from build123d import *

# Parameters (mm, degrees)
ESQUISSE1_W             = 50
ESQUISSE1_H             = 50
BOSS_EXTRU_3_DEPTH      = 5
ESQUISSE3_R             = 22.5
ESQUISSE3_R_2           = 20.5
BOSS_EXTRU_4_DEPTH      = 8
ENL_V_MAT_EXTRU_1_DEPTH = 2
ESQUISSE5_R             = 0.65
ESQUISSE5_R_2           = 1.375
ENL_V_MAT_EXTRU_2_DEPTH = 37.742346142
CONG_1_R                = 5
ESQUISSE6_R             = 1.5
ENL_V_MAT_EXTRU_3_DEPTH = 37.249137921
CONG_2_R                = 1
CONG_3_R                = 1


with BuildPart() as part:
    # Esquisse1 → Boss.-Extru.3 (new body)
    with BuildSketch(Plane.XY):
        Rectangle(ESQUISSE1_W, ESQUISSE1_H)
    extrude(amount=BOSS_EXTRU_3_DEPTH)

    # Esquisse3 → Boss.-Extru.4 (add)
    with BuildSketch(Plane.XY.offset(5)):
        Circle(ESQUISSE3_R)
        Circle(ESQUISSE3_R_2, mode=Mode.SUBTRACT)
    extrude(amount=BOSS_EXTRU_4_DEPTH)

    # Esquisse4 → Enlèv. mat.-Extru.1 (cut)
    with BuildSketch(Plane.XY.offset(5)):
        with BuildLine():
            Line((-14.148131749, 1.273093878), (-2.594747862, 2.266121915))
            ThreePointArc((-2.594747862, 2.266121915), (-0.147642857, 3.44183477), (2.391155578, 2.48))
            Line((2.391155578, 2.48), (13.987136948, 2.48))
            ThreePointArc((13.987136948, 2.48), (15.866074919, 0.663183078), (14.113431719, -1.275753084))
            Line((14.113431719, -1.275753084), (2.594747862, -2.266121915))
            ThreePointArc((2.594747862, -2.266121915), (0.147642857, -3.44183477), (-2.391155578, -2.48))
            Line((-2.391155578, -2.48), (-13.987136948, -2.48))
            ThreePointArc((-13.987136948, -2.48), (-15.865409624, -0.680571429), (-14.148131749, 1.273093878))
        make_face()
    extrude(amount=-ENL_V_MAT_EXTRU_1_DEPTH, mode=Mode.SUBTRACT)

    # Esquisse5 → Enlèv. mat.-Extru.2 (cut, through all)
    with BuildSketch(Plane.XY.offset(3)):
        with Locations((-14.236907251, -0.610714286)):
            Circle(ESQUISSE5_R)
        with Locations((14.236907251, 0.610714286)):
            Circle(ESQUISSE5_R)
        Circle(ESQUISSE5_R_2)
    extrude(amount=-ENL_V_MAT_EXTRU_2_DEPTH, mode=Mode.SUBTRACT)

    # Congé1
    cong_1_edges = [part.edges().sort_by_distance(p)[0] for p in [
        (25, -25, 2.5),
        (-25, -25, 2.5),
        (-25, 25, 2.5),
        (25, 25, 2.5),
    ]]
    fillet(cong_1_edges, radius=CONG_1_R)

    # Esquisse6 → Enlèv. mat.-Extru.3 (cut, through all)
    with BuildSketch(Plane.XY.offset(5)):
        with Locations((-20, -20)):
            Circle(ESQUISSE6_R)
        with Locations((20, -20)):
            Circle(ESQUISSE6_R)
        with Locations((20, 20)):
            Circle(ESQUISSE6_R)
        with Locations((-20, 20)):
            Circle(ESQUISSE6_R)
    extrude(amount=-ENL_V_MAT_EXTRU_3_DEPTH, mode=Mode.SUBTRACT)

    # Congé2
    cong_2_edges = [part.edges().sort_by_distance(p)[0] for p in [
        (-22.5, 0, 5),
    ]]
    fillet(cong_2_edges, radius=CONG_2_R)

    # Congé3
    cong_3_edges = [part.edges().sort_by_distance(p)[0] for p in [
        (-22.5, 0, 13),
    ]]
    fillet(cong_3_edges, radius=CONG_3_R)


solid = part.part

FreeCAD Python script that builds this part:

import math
import FreeCAD as App
import Part
import Sketcher
from FreeCAD import Vector
Q = App.Units.Quantity


def edges_at(feature, points):
    """Names of the edges that pass closest to the given points."""
    edges = feature.Shape.Edges
    near = lambda p: min(range(len(edges)), key=lambda i: edges[i].distToShape(Part.Vertex(*p))[0])
    return sorted({f"Edge{near(p) + 1}" for p in points})

doc = App.newDocument("Part")
body = doc.addObject("PartDesign::Body", "Body")

# Sketch on XY plane
sketch1 = body.newObject("Sketcher::SketchObject", "Sketch")
sketch1.AttachmentSupport = (doc.getObject("XY_Plane"), [""])
sketch1.MapMode = "FlatFace"
sketch1.addGeometry([
    Part.LineSegment(Vector(-25, 25, 0), Vector(-25, -25, 0)),
    Part.LineSegment(Vector(-25, -25, 0), Vector(25, -25, 0)),
    Part.LineSegment(Vector(25, -25, 0), Vector(25, 25, 0)),
    Part.LineSegment(Vector(25, 25, 0), Vector(-25, 25, 0)),
], False)
sketch1.addConstraint([
    Sketcher.Constraint("Coincident", 0, 2, 1, 1),
    Sketcher.Constraint("Coincident", 1, 2, 2, 1),
    Sketcher.Constraint("Coincident", 2, 2, 3, 1),
    Sketcher.Constraint("Coincident", 3, 2, 0, 1),
    Sketcher.Constraint("Vertical", 0),
    Sketcher.Constraint("Horizontal", 1),
    Sketcher.Constraint("Vertical", 2),
    Sketcher.Constraint("Horizontal", 3),
    Sketcher.Constraint("Symmetric", 0, 2, 2, 2, -1, 1),
    Sketcher.Constraint("Equal", 3, 0),
    Sketcher.Constraint("DistanceX", 1, 1, 1, 2, Q("50 mm")),
])
pad1 = body.newObject("PartDesign::Pad", "Pad")
pad1.Profile = sketch1
pad1.Length = 5

# Sketch on XY plane
sketch2 = body.newObject("Sketcher::SketchObject", "Sketch001")
sketch2.AttachmentSupport = (doc.getObject("XY_Plane"), [""])
sketch2.MapMode = "FlatFace"
sketch2.AttachmentOffset = App.Placement(Vector(0, 0, 5), App.Rotation())
sketch2.addGeometry([
    Part.Circle(Vector(0, 0, 0), Vector(0, 0, 1), 22),
    Part.Circle(Vector(0, 0, 0), Vector(0, 0, 1), 20),
], False)
sketch2.addConstraint([
    Sketcher.Constraint("Coincident", 0, 3, -1, 1),
    Sketcher.Constraint("Coincident", 1, 3, -1, 1),
    Sketcher.Constraint("Diameter", 0, Q("45 mm")),
    Sketcher.Constraint("Diameter", 1, Q("41 mm")),
])
pad2 = body.newObject("PartDesign::Pad", "Pad001")
pad2.Profile = sketch2
pad2.Length = 8

# Sketch on XY plane
sketch3 = body.newObject("Sketcher::SketchObject", "Sketch002")
sketch3.AttachmentSupport = (doc.getObject("XY_Plane"), [""])
sketch3.MapMode = "FlatFace"
sketch3.AttachmentOffset = App.Placement(Vector(0, 0, 5), App.Rotation())
sketch3.addGeometry([
    Part.LineSegment(Vector(-2.6, 2.3, 0), Vector(-14.1, 1.3, 0)),  # 0
    Part.ArcOfCircle(Part.Circle(Vector(-14, -0.6, 0), Vector(0, 0, 1), 1.9), math.radians(95), math.radians(270)),  # 1
    Part.LineSegment(Vector(-14, -2.5, 0), Vector(-2.4, -2.5, 0)),  # 2
    Part.ArcOfCircle(Part.Circle(Vector(0, 0, 0), Vector(0, 0, 1), 3.4), math.radians(-134), math.radians(-41)),  # 3
    Part.LineSegment(Vector(2.6, -2.3, 0), Vector(14.1, -1.3, 0)),  # 4
    Part.ArcOfCircle(Part.Circle(Vector(14, 0.6, 0), Vector(0, 0, 1), 1.9), math.radians(-86), math.radians(90)),  # 5
    Part.LineSegment(Vector(14, 2.5, 0), Vector(2.4, 2.5, 0)),  # 6
    Part.ArcOfCircle(Part.Circle(Vector(0, 0, 0), Vector(0, 0, 1), 3.4), math.radians(46), math.radians(139)),  # 7
], False)
sketch3.addConstraint([
    Sketcher.Constraint("Tangent", 0, 2, 1, 1),
    Sketcher.Constraint("Tangent", 1, 2, 2, 1),
    Sketcher.Constraint("Coincident", 2, 2, 3, 1),
    Sketcher.Constraint("Coincident", 3, 2, 4, 1),
    Sketcher.Constraint("Coincident", 4, 2, 5, 1),
    Sketcher.Constraint("Tangent", 5, 2, 6, 1),
    Sketcher.Constraint("Coincident", 6, 2, 7, 1),
    Sketcher.Constraint("Coincident", 7, 2, 0, 1),
    Sketcher.Constraint("Horizontal", 2),
    Sketcher.Constraint("Horizontal", 6),
    Sketcher.Constraint("Coincident", 3, 3, -1, 1),
    Sketcher.Constraint("Coincident", 7, 3, -1, 1),
    Sketcher.Constraint("Equal", 1, 5),
    Sketcher.Constraint("Equal", 3, 7),
    Sketcher.Constraint("Symmetric", 1, 3, 5, 3, -1, 1),
    Sketcher.Constraint("Radius", 1, Q("1.88 mm")),
    Sketcher.Constraint("Radius", 3, Q("3.445 mm")),
    Sketcher.Constraint("DistanceY", 1, 3, -1, 1, Q("0.6 mm")),
    Sketcher.Constraint("DistanceX", 2, 1, 2, 2, Q("11.595981 mm")),
    Sketcher.Constraint("Distance", 0, Q("11.595981 mm")),
    Sketcher.Constraint("Distance", 4, Q("11.561181 mm")),
    Sketcher.Constraint("DistanceY", 3, 2, -1, 1, Q("2.266122 mm")),
])
pocket1 = body.newObject("PartDesign::Pocket", "Pocket")
pocket1.Profile = sketch3
pocket1.Length = 2

# Sketch on XY plane
sketch4 = body.newObject("Sketcher::SketchObject", "Sketch003")
sketch4.AttachmentSupport = (doc.getObject("XY_Plane"), [""])
sketch4.MapMode = "FlatFace"
sketch4.AttachmentOffset = App.Placement(Vector(0, 0, 3), App.Rotation())
sketch4.addGeometry([
    Part.Circle(Vector(-14.2, -0.6, 0), Vector(0, 0, 1), 0.7),
    Part.Circle(Vector(14.2, 0.6, 0), Vector(0, 0, 1), 0.7),
    Part.Circle(Vector(0, 0, 0), Vector(0, 0, 1), 1.4),
], False)
sketch4.addConstraint([
    Sketcher.Constraint("Coincident", 2, 3, -1, 1),
    Sketcher.Constraint("Equal", 0, 1),
    Sketcher.Constraint("Symmetric", 0, 3, 1, 3, -1, 1),
    Sketcher.Constraint("Diameter", 0, Q("1.3 mm")),
    Sketcher.Constraint("Diameter", 2, Q("2.75 mm")),
    Sketcher.Constraint("DistanceY", 0, 3, 1, 3, Q("1.221429 mm")),
    Sketcher.Constraint("DistanceX", 0, 3, -1, 1, Q("14.236907 mm")),
])
pocket2 = body.newObject("PartDesign::Pocket", "Pocket001")
pocket2.Profile = sketch4
pocket2.Type = "ThroughAll"
doc.recompute()

fillet = body.newObject("PartDesign::Fillet", "Fillet")
fillet.Base = (pocket2, edges_at(pocket2, [
    (25, -25, 2.5),
    (-25, -25, 2.5),
    (-25, 25, 2.5),
    (25, 25, 2.5),
]))
fillet.Radius = 5

# Sketch on XY plane
sketch5 = body.newObject("Sketcher::SketchObject", "Sketch004")
sketch5.AttachmentSupport = (doc.getObject("XY_Plane"), [""])
sketch5.MapMode = "FlatFace"
sketch5.AttachmentOffset = App.Placement(Vector(0, 0, 5), App.Rotation())
sketch5.addGeometry([
    Part.Circle(Vector(-20, -20, 0), Vector(0, 0, 1), 1.5),
    Part.Circle(Vector(20, -20, 0), Vector(0, 0, 1), 1.5),
    Part.Circle(Vector(20, 20, 0), Vector(0, 0, 1), 1.5),
    Part.Circle(Vector(-20, 20, 0), Vector(0, 0, 1), 1.5),
], False)
sketch5.addConstraint([
    Sketcher.Constraint("Equal", 0, 1),
    Sketcher.Constraint("Equal", 1, 2),
    Sketcher.Constraint("Equal", 2, 3),
    Sketcher.Constraint("Symmetric", 0, 3, 2, 3, -1, 1),
    Sketcher.Constraint("Symmetric", 1, 3, 3, 3, -1, 1),
    Sketcher.Constraint("Symmetric", 0, 3, 1, 3, -2),
    Sketcher.Constraint("Diameter", 0, Q("3 mm")),
    Sketcher.Constraint("DistanceX", 0, 3, -1, 1, Q("20 mm")),
    Sketcher.Constraint("DistanceY", 0, 3, -1, 1, Q("20 mm")),
])
pocket3 = body.newObject("PartDesign::Pocket", "Pocket002")
pocket3.Profile = sketch5
pocket3.Type = "ThroughAll"
doc.recompute()

fillet2 = body.newObject("PartDesign::Fillet", "Fillet001")
fillet2.Base = (pocket3, edges_at(pocket3, [(-22.5, 0, 5)]))
fillet2.Radius = 1
doc.recompute()

fillet3 = body.newObject("PartDesign::Fillet", "Fillet002")
fillet3.Base = (fillet2, edges_at(fillet2, [(-22.5, 0, 13)]))
fillet3.Radius = 1

doc.recompute()
